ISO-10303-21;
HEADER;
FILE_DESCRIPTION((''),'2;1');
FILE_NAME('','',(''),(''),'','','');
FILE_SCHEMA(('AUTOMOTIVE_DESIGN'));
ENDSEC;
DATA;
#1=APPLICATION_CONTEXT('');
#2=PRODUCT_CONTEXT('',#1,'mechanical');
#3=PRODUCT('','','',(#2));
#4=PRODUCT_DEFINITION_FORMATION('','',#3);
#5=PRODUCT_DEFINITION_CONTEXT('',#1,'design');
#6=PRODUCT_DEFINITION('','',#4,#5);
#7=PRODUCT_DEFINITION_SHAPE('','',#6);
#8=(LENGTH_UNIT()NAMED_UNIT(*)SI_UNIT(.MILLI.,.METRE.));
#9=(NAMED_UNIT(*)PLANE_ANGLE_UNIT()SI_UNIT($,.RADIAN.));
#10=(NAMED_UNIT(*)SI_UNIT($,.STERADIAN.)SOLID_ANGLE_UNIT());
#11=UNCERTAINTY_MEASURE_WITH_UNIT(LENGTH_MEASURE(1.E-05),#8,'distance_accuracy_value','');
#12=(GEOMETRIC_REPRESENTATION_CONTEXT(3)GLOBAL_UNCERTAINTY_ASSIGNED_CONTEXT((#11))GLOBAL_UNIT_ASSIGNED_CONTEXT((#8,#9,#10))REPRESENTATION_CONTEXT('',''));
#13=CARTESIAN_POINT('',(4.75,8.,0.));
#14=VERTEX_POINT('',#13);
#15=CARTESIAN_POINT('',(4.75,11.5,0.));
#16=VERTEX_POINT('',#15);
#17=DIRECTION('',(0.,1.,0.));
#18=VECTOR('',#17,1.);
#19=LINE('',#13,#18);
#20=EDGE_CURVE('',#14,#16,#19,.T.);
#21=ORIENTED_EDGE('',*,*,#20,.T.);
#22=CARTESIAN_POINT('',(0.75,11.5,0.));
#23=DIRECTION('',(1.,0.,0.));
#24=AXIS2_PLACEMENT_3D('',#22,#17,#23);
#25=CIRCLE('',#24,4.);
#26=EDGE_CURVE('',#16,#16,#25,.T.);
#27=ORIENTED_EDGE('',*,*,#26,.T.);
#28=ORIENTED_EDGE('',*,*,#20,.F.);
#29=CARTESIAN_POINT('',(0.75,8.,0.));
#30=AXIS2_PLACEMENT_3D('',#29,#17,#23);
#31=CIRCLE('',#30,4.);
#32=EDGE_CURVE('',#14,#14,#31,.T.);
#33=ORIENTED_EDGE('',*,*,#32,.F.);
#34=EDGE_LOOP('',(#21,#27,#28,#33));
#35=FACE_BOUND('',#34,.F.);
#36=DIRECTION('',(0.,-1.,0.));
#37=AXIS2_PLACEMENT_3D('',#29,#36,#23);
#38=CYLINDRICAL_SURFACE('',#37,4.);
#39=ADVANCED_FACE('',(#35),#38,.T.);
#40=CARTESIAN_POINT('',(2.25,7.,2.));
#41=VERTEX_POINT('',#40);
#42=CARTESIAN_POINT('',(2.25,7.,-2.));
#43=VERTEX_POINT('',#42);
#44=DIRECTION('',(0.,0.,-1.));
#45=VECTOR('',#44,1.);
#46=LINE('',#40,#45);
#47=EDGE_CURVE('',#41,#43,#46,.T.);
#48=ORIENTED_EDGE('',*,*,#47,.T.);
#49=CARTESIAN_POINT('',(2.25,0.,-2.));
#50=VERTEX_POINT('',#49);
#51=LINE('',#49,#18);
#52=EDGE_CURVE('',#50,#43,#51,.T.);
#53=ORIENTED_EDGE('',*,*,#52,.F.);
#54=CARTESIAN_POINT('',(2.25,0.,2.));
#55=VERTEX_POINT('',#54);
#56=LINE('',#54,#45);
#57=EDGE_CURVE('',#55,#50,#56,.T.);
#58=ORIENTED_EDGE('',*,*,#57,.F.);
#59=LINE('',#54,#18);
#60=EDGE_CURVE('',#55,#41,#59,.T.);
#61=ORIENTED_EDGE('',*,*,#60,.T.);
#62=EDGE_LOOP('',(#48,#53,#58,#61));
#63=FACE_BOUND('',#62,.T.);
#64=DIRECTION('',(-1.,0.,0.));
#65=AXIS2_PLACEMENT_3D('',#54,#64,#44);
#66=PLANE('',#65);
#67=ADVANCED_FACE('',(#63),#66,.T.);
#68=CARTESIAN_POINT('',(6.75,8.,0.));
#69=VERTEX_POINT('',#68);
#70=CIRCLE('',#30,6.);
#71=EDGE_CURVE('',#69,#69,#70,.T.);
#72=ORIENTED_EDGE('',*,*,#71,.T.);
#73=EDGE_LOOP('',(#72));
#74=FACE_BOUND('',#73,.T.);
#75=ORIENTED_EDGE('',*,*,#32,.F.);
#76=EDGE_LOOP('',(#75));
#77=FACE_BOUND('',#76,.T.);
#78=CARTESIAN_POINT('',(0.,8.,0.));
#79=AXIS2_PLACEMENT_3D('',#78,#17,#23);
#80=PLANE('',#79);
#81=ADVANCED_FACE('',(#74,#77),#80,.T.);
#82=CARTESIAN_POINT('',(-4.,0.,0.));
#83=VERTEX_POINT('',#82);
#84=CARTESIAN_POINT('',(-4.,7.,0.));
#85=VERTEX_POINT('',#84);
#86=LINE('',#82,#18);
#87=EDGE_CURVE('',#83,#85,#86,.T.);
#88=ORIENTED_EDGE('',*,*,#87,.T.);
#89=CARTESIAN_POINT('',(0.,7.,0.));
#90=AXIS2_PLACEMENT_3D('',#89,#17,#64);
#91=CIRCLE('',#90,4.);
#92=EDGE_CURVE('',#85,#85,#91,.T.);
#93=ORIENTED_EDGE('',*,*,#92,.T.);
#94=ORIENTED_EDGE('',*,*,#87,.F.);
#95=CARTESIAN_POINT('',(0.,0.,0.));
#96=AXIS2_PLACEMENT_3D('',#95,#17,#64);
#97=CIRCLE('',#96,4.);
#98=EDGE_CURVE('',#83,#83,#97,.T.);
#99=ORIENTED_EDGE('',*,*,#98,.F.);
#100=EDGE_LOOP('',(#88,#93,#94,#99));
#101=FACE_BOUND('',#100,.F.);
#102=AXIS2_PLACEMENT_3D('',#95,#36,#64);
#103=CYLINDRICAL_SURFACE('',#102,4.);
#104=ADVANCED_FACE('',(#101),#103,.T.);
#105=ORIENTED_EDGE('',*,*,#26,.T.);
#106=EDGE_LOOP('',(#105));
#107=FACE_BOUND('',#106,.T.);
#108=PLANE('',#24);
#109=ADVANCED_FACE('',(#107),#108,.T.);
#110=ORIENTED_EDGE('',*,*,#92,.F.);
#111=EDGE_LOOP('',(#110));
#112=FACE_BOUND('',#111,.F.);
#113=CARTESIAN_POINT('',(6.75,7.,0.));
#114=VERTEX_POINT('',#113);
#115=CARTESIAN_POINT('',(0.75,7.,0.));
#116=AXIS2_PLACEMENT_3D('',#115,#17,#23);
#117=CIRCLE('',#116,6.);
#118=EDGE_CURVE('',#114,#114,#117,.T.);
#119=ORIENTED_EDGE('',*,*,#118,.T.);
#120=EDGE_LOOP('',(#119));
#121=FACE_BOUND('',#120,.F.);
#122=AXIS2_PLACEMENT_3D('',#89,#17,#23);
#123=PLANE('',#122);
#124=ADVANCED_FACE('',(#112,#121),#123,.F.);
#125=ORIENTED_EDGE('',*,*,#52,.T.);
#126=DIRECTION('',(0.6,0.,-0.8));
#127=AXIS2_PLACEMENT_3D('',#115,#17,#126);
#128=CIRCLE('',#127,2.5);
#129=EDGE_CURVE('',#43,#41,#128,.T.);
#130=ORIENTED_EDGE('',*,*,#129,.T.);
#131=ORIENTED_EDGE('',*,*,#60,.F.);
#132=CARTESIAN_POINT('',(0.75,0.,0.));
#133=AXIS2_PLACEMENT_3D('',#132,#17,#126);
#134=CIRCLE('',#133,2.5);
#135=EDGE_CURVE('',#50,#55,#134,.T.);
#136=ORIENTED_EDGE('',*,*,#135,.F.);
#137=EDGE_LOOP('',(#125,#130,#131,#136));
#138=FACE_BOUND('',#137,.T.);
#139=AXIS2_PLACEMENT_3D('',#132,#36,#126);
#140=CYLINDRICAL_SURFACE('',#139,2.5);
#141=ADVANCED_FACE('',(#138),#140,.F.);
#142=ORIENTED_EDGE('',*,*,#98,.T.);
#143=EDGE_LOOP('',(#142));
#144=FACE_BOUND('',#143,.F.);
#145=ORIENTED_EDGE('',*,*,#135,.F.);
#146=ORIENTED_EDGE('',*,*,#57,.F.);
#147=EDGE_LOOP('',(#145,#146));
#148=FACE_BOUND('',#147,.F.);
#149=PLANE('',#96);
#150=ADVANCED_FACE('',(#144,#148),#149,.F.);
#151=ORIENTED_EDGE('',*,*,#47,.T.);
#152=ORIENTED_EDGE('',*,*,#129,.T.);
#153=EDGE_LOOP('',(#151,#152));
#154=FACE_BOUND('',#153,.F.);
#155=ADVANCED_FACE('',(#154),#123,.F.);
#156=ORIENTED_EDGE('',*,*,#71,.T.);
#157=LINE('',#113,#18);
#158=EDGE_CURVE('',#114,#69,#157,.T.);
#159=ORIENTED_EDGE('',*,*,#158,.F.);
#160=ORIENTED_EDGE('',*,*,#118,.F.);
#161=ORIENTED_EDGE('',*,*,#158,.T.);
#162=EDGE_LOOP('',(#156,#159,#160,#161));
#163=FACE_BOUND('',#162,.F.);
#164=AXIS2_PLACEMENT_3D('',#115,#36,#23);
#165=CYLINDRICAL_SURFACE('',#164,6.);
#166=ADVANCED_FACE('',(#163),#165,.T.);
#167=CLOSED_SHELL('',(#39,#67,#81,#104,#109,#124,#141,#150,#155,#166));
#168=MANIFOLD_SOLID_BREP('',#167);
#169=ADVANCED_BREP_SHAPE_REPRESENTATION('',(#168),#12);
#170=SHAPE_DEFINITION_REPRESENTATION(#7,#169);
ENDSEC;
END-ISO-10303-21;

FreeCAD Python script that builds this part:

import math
import FreeCAD as App
import Part
import Sketcher
Q = App.Units.Quantity

doc = App.newDocument("Part")
params = doc.addObject("Spreadsheet::Sheet", "Params")
for row, (alias, value) in enumerate([
    ("sketch1_diameter", "8 mm"),
    ("sketch1_radius", "2.5 mm"),
    ("sketch1_height", "4 mm"),
    ("pad1_length", "7 mm"),
    ("sketch2_diameter", "12 mm"),
    ("pad2_length", "1 mm"),
    ("sketch3_diameter", "8 mm"),
    ("pad3_length", "3.5 mm"),
], start=1):
    params.set(f"A{row}", alias)
    params.set(f"B{row}", "=" + value)
    params.setAlias(f"B{row}", alias)

body = doc.addObject("PartDesign::Body", "Body")

# Sketch on XZ plane
sketch1 = body.newObject("Sketcher::SketchObject", "Sketch")
sketch1.AttachmentSupport = (doc.getObject("XZ_Plane"), [""])
sketch1.MapMode = "FlatFace"
sketch1.addGeometry([
    Part.Circle(App.Vector(0, 0, 0), App.Vector(0, 0, 1), 4),
    Part.ArcOfCircle(Part.Circle(App.Vector(0.8, 0, 0), App.Vector(0, 0, 1), 2.5), math.radians(53), math.radians(307)),
    Part.LineSegment(App.Vector(2.2, -2, 0), App.Vector(2.2, 2, 0)),
], False)
sketch1.addConstraint([
    Sketcher.Constraint("Coincident", 1, 1, 2, 2),
    Sketcher.Constraint("Coincident", 2, 1, 1, 2),
    Sketcher.Constraint("Vertical", 2),
    Sketcher.Constraint("Coincident", 0, 3, -1, 1),
    Sketcher.Constraint("PointOnObject", 1, 3, -1),
    Sketcher.Constraint("Diameter", 0, Q("8 mm")),
    Sketcher.Constraint("Radius", 1, Q("2.5 mm")),
    Sketcher.Constraint("DistanceY", 2, 1, 2, 2, Q("4 mm")),
    Sketcher.Constraint("DistanceX", -1, 1, 1, 3, Q("0.75 mm")),
])
sketch1.setExpression("Constraints[5]", "Params.sketch1_diameter")
sketch1.setExpression("Constraints[6]", "Params.sketch1_radius")
sketch1.setExpression("Constraints[7]", "Params.sketch1_height")
pad1 = body.newObject("PartDesign::Pad", "Pad")
pad1.Profile = sketch1
pad1.setExpression("Length", "Params.pad1_length")
pad1.Reversed = True

# Sketch on XZ plane
sketch2 = body.newObject("Sketcher::SketchObject", "Sketch001")
sketch2.AttachmentSupport = (doc.getObject("XZ_Plane"), [""])
sketch2.MapMode = "FlatFace"
sketch2.AttachmentOffset = App.Placement(App.Vector(0, 0, -7), App.Rotation())
sketch2.addGeometry(Part.Circle(App.Vector(1, 0, 0), App.Vector(0, 0, 1), 6), False)
sketch2.addConstraint([
    Sketcher.Constraint("PointOnObject", 0, 3, -1),
    Sketcher.Constraint("Diameter", 0, Q("12 mm")),
    Sketcher.Constraint("DistanceX", -1, 1, 0, 3, Q("0.75 mm")),
])
sketch2.setExpression("Constraints[1]", "Params.sketch2_diameter")
pad2 = body.newObject("PartDesign::Pad", "Pad001")
pad2.Profile = sketch2
pad2.setExpression("Length", "Params.pad2_length")
pad2.Reversed = True

# Sketch on XZ plane
sketch3 = body.newObject("Sketcher::SketchObject", "Sketch002")
sketch3.AttachmentSupport = (doc.getObject("XZ_Plane"), [""])
sketch3.MapMode = "FlatFace"
sketch3.AttachmentOffset = App.Placement(App.Vector(0, 0, -8), App.Rotation())
sketch3.addGeometry(Part.Circle(App.Vector(0.8, 0, 0), App.Vector(0, 0, 1), 4), False)
sketch3.addConstraint([
    Sketcher.Constraint("PointOnObject", 0, 3, -1),
    Sketcher.Constraint("Diameter", 0, Q("8 mm")),
    Sketcher.Constraint("DistanceX", -1, 1, 0, 3, Q("0.75 mm")),
])
sketch3.setExpression("Constraints[1]", "Params.sketch3_diameter")
pad3 = body.newObject("PartDesign::Pad", "Pad002")
pad3.Profile = sketch3
pad3.setExpression("Length", "Params.pad3_length")
pad3.Reversed = True

doc.recompute()
